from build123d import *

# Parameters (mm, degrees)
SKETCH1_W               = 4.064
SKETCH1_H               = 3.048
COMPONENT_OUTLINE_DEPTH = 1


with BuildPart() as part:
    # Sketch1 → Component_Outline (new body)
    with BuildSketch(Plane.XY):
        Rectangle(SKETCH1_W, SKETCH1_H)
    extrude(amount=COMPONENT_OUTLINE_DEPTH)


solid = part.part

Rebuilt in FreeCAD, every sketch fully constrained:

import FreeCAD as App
import Part
import Sketcher
Q = App.Units.Quantity


def add_polygon(sketch, points):
    """Adds a closed chain of lines whose ends are joined by coincident constraints."""
    first, n = sketch.GeometryCount, len(points)
    for a, b in zip(points, points[1:] + points[:1]):
        sketch.addGeometry(Part.LineSegment(App.Vector(*a, 0), App.Vector(*b, 0)), False)
    for i in range(n):
        sketch.addConstraint(Sketcher.Constraint("Coincident", first + i, 2, first + (i + 1) % n, 1))

doc = App.newDocument("Part")
params = doc.addObject("Spreadsheet::Sheet", "Params")
for row, (alias, value) in enumerate([
    ("sketch1_width", "0.16 in"),
    ("sketch1_height", "0.12 in"),
    ("pad1_length", "1 mm"),
], start=1):
    params.set(f"A{row}", alias)
    params.set(f"B{row}", "=" + value)
    params.setAlias(f"B{row}", alias)

body = doc.addObject("PartDesign::Body", "Body")

# Sketch on XY plane
sketch1 = body.newObject("Sketcher::SketchObject", "Sketch")
sketch1.AttachmentSupport = (doc.getObject("XY_Plane"), [""])
sketch1.MapMode = "FlatFace"
add_polygon(sketch1, [(-2, 1.5), (-2, -1.5), (2, -1.5), (2, 1.5)])  # lines 0-3
sketch1.addConstraint([
    Sketcher.Constraint("Vertical", 0),
    Sketcher.Constraint("Horizontal", 1),
    Sketcher.Constraint("Vertical", 2),
    Sketcher.Constraint("Horizontal", 3),
    Sketcher.Constraint("Symmetric", 0, 2, 2, 2, -1, 1),
    Sketcher.Constraint("DistanceX", 1, 1, 1, 2, Q("0.16 in")),
    Sketcher.Constraint("DistanceY", 0, 2, 0, 1, Q("0.12 in")),
])
sketch1.setExpression("Constraints[9]", "Params.sketch1_width")
sketch1.setExpression("Constraints[10]", "Params.sketch1_height")
pad1 = body.newObject("PartDesign::Pad", "Pad")
pad1.Profile = sketch1
pad1.setExpression("Length", "Params.pad1_length")

doc.recompute()
